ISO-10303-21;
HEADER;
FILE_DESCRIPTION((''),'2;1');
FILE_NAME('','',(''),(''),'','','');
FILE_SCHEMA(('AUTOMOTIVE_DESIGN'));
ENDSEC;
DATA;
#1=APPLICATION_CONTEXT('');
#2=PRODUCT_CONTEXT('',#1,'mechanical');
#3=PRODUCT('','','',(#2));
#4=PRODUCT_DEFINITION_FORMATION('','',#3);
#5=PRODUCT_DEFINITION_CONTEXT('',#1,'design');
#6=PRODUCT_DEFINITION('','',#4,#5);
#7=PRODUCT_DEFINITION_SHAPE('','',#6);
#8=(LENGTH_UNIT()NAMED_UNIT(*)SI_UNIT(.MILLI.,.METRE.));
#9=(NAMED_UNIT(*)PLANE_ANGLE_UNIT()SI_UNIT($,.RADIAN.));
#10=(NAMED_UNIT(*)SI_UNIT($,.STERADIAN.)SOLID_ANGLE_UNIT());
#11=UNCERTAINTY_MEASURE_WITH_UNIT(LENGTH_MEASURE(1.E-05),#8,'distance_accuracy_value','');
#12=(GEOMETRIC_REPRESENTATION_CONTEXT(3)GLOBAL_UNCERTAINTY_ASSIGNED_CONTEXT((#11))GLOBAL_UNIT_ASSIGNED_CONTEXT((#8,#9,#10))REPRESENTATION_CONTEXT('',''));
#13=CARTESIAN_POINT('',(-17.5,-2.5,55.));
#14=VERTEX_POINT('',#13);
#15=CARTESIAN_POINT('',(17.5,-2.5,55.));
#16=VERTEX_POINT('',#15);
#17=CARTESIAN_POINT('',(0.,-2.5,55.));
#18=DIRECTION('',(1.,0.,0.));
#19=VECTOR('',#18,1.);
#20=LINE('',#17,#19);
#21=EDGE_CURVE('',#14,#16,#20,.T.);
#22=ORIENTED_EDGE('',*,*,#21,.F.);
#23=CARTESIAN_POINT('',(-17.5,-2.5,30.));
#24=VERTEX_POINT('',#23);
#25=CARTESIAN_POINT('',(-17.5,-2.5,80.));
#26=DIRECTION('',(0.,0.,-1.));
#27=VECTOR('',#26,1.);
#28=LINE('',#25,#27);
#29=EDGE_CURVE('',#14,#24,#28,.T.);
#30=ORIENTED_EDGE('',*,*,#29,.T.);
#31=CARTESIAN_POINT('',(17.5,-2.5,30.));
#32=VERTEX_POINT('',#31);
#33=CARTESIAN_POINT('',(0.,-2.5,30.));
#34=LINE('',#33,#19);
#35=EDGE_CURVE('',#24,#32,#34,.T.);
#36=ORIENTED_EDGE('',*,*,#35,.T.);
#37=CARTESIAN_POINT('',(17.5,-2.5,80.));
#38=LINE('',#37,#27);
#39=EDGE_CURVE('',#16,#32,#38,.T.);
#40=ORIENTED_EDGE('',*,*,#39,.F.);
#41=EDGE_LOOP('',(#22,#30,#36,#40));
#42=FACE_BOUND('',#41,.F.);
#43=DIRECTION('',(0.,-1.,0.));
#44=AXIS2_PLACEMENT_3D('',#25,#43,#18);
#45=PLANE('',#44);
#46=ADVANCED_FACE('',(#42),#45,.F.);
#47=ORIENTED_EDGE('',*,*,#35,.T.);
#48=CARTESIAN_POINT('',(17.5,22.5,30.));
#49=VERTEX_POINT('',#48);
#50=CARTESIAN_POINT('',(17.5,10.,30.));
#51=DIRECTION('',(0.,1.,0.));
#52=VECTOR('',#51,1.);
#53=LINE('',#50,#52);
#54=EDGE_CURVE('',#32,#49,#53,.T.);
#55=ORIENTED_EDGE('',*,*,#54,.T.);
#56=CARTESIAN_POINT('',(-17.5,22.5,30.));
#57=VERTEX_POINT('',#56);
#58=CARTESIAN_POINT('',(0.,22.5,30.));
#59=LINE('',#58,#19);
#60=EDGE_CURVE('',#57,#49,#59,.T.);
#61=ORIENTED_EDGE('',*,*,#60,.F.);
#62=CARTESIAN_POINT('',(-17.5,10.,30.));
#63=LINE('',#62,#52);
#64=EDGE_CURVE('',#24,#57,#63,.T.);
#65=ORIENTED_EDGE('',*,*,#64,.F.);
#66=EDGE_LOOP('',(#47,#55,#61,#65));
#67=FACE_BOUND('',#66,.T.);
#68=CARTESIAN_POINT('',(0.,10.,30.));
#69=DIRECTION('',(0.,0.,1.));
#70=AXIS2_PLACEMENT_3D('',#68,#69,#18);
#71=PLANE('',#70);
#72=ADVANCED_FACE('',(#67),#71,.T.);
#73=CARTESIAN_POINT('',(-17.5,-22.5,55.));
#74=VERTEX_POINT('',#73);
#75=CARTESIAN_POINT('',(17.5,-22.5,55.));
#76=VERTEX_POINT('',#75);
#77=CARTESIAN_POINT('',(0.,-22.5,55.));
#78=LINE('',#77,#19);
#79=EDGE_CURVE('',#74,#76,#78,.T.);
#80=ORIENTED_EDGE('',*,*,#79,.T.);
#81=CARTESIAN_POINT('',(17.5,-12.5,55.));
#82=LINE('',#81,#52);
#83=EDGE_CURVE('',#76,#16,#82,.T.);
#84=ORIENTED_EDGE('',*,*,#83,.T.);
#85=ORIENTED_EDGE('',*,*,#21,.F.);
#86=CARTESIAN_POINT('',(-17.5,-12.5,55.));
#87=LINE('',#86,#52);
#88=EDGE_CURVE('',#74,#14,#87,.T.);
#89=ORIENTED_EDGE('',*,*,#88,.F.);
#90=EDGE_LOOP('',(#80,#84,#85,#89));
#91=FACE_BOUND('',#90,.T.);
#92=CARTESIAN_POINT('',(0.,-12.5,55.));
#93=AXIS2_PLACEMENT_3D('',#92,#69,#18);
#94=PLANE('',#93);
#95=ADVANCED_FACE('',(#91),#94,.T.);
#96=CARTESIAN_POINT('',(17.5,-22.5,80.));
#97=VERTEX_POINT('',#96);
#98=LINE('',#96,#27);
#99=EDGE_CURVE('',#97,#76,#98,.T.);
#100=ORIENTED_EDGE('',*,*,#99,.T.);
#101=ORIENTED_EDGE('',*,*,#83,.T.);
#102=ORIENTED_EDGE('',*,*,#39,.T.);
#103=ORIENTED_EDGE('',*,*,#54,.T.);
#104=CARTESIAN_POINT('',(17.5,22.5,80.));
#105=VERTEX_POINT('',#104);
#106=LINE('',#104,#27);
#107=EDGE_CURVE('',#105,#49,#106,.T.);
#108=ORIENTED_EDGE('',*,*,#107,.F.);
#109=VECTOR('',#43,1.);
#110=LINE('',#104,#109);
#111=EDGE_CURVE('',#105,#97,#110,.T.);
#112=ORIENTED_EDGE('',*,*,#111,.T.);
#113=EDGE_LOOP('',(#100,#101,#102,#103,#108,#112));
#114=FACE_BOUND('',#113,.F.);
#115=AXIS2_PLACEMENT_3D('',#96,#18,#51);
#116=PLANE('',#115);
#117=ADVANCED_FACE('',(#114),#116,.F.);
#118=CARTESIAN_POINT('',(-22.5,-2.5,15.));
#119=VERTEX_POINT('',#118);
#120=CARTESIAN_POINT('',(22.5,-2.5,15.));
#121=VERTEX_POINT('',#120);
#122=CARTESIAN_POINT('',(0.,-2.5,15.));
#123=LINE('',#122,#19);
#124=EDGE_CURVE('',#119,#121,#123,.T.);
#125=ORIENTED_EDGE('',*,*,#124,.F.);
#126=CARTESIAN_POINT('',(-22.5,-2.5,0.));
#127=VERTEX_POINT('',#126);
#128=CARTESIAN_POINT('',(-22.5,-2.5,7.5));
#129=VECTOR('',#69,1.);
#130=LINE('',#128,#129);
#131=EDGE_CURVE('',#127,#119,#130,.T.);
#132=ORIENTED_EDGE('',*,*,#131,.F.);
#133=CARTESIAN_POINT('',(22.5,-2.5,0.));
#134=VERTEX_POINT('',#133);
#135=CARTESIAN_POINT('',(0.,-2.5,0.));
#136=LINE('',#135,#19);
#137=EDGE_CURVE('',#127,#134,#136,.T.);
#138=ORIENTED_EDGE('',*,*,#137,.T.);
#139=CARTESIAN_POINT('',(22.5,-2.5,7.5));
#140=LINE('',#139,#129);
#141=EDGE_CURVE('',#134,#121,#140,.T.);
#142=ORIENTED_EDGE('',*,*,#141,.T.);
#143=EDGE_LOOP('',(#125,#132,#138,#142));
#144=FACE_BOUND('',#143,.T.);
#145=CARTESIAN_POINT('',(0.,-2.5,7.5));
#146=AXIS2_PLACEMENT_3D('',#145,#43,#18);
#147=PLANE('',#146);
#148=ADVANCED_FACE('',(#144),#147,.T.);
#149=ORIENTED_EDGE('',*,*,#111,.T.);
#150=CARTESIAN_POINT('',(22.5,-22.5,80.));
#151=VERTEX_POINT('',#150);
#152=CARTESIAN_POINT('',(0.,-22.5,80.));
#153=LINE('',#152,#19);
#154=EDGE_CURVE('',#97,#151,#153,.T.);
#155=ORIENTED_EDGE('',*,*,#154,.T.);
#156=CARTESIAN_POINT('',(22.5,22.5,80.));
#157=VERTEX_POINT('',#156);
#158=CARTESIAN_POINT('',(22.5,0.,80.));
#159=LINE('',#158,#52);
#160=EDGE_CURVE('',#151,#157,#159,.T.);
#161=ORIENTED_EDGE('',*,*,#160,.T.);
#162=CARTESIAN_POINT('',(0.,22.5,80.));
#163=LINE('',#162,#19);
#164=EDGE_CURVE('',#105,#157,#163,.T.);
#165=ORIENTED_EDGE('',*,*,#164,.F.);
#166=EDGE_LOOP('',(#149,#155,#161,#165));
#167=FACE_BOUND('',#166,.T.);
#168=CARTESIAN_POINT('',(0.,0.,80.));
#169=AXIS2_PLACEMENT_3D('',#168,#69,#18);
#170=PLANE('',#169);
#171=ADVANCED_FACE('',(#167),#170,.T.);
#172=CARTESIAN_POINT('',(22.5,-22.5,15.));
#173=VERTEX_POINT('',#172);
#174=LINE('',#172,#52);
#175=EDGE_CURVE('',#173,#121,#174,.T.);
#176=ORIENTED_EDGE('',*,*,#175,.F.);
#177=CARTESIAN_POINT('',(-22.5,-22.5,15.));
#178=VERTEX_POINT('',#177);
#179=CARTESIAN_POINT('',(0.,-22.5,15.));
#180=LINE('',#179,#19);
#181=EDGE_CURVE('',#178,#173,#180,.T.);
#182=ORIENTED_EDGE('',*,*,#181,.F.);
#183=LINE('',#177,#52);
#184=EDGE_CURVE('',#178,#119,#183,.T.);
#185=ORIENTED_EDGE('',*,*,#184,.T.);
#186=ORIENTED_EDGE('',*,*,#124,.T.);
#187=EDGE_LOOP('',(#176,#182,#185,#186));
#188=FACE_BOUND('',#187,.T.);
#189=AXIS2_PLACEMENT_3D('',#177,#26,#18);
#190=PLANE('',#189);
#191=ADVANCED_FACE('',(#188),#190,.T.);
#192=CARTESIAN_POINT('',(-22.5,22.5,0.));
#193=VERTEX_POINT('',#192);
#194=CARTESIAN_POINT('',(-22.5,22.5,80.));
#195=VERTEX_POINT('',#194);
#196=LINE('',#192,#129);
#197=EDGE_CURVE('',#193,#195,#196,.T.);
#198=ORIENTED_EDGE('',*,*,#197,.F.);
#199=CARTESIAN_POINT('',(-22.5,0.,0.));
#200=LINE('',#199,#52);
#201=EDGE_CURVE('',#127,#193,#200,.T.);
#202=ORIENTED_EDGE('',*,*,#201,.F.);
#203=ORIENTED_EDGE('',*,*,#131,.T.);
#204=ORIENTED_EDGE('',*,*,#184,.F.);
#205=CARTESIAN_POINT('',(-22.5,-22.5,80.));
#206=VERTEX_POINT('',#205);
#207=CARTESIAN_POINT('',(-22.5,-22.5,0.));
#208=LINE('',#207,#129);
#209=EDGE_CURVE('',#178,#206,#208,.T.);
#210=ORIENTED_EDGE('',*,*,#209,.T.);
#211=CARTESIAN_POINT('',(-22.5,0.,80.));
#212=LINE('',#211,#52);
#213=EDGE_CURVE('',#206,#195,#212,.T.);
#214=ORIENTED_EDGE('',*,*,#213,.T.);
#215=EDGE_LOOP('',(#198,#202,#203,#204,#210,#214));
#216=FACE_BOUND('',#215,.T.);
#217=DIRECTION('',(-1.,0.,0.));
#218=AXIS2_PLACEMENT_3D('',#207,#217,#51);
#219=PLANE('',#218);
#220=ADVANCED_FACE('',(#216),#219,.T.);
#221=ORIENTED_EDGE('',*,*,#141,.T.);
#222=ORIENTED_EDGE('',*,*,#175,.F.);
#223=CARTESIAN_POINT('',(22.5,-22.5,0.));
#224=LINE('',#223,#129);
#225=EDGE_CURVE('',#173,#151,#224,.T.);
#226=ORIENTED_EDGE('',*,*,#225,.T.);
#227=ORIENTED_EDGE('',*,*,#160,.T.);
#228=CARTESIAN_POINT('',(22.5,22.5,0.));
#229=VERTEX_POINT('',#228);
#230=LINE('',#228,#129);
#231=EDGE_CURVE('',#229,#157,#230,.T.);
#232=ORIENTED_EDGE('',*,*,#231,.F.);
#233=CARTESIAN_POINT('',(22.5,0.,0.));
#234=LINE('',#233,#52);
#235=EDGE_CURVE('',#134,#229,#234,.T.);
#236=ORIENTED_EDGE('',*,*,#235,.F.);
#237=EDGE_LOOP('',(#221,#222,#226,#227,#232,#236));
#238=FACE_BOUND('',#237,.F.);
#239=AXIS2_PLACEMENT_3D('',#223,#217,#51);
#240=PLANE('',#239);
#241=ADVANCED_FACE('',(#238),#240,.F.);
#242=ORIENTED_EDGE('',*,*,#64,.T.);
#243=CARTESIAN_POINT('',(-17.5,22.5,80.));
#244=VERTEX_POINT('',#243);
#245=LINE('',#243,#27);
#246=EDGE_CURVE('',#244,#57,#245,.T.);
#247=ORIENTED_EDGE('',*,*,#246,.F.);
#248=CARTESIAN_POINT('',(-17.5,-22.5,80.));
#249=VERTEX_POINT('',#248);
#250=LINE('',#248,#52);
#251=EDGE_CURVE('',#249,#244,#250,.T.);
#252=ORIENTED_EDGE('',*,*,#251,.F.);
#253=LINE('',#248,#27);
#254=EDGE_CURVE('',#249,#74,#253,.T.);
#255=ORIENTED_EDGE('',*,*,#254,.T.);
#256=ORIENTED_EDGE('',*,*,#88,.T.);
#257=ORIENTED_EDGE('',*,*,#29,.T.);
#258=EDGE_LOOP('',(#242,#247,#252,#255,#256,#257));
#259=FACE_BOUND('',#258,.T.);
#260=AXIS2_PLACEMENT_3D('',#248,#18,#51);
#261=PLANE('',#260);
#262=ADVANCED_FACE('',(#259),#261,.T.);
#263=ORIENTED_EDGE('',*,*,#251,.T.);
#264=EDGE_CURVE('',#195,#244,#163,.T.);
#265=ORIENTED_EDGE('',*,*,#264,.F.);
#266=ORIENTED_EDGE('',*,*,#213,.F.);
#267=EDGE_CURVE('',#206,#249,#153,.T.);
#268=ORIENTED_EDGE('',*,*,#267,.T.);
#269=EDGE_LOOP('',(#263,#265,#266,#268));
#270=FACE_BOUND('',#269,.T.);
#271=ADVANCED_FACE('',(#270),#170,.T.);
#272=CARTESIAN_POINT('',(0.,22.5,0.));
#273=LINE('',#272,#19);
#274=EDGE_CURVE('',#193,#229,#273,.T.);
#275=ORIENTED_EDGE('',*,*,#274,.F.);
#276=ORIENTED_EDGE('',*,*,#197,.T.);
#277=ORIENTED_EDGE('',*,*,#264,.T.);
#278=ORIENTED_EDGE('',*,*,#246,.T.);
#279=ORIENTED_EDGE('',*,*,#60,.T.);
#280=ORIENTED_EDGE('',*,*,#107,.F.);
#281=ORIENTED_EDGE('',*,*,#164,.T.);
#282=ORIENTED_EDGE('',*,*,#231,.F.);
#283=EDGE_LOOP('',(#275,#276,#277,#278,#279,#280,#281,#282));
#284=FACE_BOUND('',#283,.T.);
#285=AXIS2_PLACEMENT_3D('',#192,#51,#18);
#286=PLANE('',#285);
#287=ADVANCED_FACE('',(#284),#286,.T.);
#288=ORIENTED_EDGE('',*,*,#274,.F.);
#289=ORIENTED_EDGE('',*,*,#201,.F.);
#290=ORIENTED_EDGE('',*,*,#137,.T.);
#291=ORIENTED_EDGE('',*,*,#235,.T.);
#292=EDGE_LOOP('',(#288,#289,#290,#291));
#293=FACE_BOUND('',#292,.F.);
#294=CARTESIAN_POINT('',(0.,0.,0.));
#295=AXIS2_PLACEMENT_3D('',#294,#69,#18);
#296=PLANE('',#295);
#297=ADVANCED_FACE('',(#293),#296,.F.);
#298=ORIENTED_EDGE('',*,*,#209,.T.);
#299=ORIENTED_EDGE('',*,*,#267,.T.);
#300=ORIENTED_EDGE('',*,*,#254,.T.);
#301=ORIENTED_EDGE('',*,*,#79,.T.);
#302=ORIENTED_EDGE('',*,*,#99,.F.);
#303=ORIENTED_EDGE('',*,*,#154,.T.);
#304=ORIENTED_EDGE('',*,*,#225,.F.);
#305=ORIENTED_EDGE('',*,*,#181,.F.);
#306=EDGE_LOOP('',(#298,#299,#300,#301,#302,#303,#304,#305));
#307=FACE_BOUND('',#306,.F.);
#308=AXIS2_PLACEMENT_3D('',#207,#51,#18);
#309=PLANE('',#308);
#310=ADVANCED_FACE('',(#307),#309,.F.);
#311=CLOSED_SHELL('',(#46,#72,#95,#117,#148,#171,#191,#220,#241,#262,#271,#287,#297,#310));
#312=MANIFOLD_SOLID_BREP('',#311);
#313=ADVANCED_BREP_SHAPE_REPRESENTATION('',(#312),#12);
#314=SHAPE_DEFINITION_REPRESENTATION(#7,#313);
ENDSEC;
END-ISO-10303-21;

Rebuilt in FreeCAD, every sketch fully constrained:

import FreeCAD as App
import Part
import Sketcher

V = App.Vector
Q = App.Units.Quantity


def add_polygon(sketch, points):
    """Adds a closed chain of lines whose ends are joined by coincident constraints."""
    first, n = sketch.GeometryCount, len(points)
    for a, b in zip(points, points[1:] + points[:1]):
        sketch.addGeometry(Part.LineSegment(App.Vector(*a, 0), App.Vector(*b, 0)), False)
    for i in range(n):
        sketch.addConstraint(Sketcher.Constraint("Coincident", first + i, 2, first + (i + 1) % n, 1))

doc = App.newDocument("Part")
body = doc.addObject("PartDesign::Body", "Body")

sketch1 = body.newObject("Sketcher::SketchObject", "Sketch")
sketch1.AttachmentSupport = (doc.getObject("XY_Plane"), [""])
sketch1.MapMode = "FlatFace"
add_polygon(sketch1, [(-22.5, 22.5), (-22.5, -22.5), (22.5, -22.5), (22.5, 22.5)])
sketch1.addConstraint(Sketcher.Constraint("Vertical", 0))
sketch1.addConstraint(Sketcher.Constraint("Horizontal", 1))
sketch1.addConstraint(Sketcher.Constraint("Vertical", 2))
sketch1.addConstraint(Sketcher.Constraint("Horizontal", 3))
sketch1.addConstraint(Sketcher.Constraint("Symmetric", 0, 2, 2, 2, -1, 1))
sketch1.addConstraint(Sketcher.Constraint("Equal", 3, 0))
sketch1.addConstraint(Sketcher.Constraint("DistanceX", 1, 1, 1, 2, Q("45 mm")))
pad1 = body.newObject("PartDesign::Pad", "Pad")
pad1.Profile = sketch1
pad1.Length = 80

sketch2 = body.newObject("Sketcher::SketchObject", "Sketch001")
sketch2.AttachmentSupport = (doc.getObject("XY_Plane"), [""])
sketch2.MapMode = "FlatFace"
sketch2.AttachmentOffset = App.Placement(V(0, 0, 80), App.Rotation())
add_polygon(sketch2, [(-17.5, -2.5), (-17.5, -22.5), (17.5, -22.5), (17.5, -2.5)])
sketch2.addConstraint(Sketcher.Constraint("Vertical", 0))
sketch2.addConstraint(Sketcher.Constraint("Horizontal", 1))
sketch2.addConstraint(Sketcher.Constraint("Vertical", 2))
sketch2.addConstraint(Sketcher.Constraint("Horizontal", 3))
sketch2.addConstraint(Sketcher.Constraint("DistanceX", 1, 1, 1, 2, Q("35 mm")))
sketch2.addConstraint(Sketcher.Constraint("DistanceY", 0, 2, 0, 1, Q("20 mm")))
sketch2.addConstraint(Sketcher.Constraint("DistanceX", 0, 2, -1, 1, Q("17.5 mm")))
sketch2.addConstraint(Sketcher.Constraint("DistanceY", 0, 2, -1, 1, Q("22.5 mm")))
pocket1 = body.newObject("PartDesign::Pocket", "Pocket")
pocket1.Profile = sketch2
pocket1.Length = 25

sketch3 = body.newObject("Sketcher::SketchObject", "Sketch002")
sketch3.AttachmentSupport = (doc.getObject("XY_Plane"), [""])
sketch3.MapMode = "FlatFace"
sketch3.AttachmentOffset = App.Placement(V(0, 0, 80), App.Rotation())
add_polygon(sketch3, [(-17.5, 22.5), (-17.5, -2.5), (17.5, -2.5), (17.5, 22.5)])
sketch3.addConstraint(Sketcher.Constraint("Vertical", 0))
sketch3.addConstraint(Sketcher.Constraint("Horizontal", 1))
sketch3.addConstraint(Sketcher.Constraint("Vertical", 2))
sketch3.addConstraint(Sketcher.Constraint("Horizontal", 3))
sketch3.addConstraint(Sketcher.Constraint("DistanceX", 1, 1, 1, 2, Q("35 mm")))
sketch3.addConstraint(Sketcher.Constraint("DistanceY", 0, 2, 0, 1, Q("25 mm")))
sketch3.addConstraint(Sketcher.Constraint("DistanceX", 0, 2, -1, 1, Q("17.5 mm")))
sketch3.addConstraint(Sketcher.Constraint("DistanceY", 0, 2, -1, 1, Q("2.5 mm")))
pocket2 = body.newObject("PartDesign::Pocket", "Pocket001")
pocket2.Profile = sketch3
pocket2.Length = 50

sketch4 = body.newObject("Sketcher::SketchObject", "Sketch003")
sketch4.AttachmentSupport = (doc.getObject("XZ_Plane"), [""])
sketch4.MapMode = "FlatFace"
sketch4.AttachmentOffset = App.Placement(V(0, 0, 22.5), App.Rotation())
add_polygon(sketch4, [(-22.5, 15), (-22.5, 0), (22.5, 0), (22.5, 15)])
sketch4.addConstraint(Sketcher.Constraint("Vertical", 0))
sketch4.addConstraint(Sketcher.Constraint("Horizontal", 1))
sketch4.addConstraint(Sketcher.Constraint("Vertical", 2))
sketch4.addConstraint(Sketcher.Constraint("Horizontal", 3))
sketch4.addConstraint(Sketcher.Constraint("Symmetric", 0, 2, 1, 2, -1, 1))
sketch4.addConstraint(Sketcher.Constraint("DistanceX", 1, 1, 1, 2, Q("45 mm")))
sketch4.addConstraint(Sketcher.Constraint("DistanceY", 0, 2, 0, 1, Q("15 mm")))
pocket3 = body.newObject("PartDesign::Pocket", "Pocket002")
pocket3.Profile = sketch4
pocket3.Length = 20

doc.recompute()
